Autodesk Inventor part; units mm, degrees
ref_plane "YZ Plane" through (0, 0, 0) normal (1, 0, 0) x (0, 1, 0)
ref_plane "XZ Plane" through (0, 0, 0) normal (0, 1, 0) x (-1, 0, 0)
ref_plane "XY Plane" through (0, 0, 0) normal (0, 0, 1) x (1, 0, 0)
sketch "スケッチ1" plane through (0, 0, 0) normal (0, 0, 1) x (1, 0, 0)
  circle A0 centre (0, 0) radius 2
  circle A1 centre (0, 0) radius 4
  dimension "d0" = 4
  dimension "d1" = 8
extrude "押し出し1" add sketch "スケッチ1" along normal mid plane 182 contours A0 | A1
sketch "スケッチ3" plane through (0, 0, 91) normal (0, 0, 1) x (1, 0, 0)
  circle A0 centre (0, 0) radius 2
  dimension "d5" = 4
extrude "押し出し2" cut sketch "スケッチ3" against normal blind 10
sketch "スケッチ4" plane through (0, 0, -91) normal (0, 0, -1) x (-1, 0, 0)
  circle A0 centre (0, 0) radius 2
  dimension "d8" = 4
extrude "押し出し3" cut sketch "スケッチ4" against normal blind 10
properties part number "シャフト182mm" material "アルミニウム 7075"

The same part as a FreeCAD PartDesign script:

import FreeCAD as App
import Part
import Sketcher

V = App.Vector
Q = App.Units.Quantity

doc = App.newDocument("Part")
body = doc.addObject("PartDesign::Body", "Body")

sketch1 = doc.addObject("Sketcher::SketchObject", "Sketch")
body.addObject(sketch1)
sketch1.AttachmentSupport = (doc.XY_Plane, [""])
sketch1.MapMode = "FlatFace"
sketch1.addGeometry(Part.Circle(V(0, 0, 0), V(0, 0, 1), 4), False)
sketch1.addConstraint([
    Sketcher.Constraint("Coincident", 0, 3, -1, 1),
    Sketcher.Constraint("Diameter", 0, Q("8 mm")),
])
pad1 = doc.addObject("PartDesign::Pad", "Pad")
body.addObject(pad1)
pad1.Profile = sketch1
pad1.Length = 182
pad1.Midplane = True

sketch2 = doc.addObject("Sketcher::SketchObject", "Sketch001")
body.addObject(sketch2)
sketch2.AttachmentSupport = (doc.XY_Plane, [""])
sketch2.MapMode = "FlatFace"
sketch2.AttachmentOffset = App.Placement(V(0, 0, 91), App.Rotation())
sketch2.addGeometry(Part.Circle(V(0, 0, 0), V(0, 0, 1), 2), False)
sketch2.addConstraint([
    Sketcher.Constraint("Coincident", 0, 3, -1, 1),
    Sketcher.Constraint("Diameter", 0, Q("4 mm")),
])
pocket1 = doc.addObject("PartDesign::Pocket", "Pocket")
body.addObject(pocket1)
pocket1.Profile = sketch2
pocket1.Length = 10

sketch3 = doc.addObject("Sketcher::SketchObject", "Sketch002")
body.addObject(sketch3)
sketch3.AttachmentSupport = (doc.XY_Plane, [""])
sketch3.MapMode = "FlatFace"
sketch3.AttachmentOffset = App.Placement(V(0, 0, -91), App.Rotation())
sketch3.addGeometry(Part.Circle(V(0, 0, 0), V(0, 0, 1), 2), False)
sketch3.addConstraint([
    Sketcher.Constraint("Coincident", 0, 3, -1, 1),
    Sketcher.Constraint("Diameter", 0, Q("4 mm")),
])
pocket2 = doc.addObject("PartDesign::Pocket", "Pocket001")
body.addObject(pocket2)
pocket2.Profile = sketch3
pocket2.Length = 10
pocket2.Reversed = True

doc.recompute()
